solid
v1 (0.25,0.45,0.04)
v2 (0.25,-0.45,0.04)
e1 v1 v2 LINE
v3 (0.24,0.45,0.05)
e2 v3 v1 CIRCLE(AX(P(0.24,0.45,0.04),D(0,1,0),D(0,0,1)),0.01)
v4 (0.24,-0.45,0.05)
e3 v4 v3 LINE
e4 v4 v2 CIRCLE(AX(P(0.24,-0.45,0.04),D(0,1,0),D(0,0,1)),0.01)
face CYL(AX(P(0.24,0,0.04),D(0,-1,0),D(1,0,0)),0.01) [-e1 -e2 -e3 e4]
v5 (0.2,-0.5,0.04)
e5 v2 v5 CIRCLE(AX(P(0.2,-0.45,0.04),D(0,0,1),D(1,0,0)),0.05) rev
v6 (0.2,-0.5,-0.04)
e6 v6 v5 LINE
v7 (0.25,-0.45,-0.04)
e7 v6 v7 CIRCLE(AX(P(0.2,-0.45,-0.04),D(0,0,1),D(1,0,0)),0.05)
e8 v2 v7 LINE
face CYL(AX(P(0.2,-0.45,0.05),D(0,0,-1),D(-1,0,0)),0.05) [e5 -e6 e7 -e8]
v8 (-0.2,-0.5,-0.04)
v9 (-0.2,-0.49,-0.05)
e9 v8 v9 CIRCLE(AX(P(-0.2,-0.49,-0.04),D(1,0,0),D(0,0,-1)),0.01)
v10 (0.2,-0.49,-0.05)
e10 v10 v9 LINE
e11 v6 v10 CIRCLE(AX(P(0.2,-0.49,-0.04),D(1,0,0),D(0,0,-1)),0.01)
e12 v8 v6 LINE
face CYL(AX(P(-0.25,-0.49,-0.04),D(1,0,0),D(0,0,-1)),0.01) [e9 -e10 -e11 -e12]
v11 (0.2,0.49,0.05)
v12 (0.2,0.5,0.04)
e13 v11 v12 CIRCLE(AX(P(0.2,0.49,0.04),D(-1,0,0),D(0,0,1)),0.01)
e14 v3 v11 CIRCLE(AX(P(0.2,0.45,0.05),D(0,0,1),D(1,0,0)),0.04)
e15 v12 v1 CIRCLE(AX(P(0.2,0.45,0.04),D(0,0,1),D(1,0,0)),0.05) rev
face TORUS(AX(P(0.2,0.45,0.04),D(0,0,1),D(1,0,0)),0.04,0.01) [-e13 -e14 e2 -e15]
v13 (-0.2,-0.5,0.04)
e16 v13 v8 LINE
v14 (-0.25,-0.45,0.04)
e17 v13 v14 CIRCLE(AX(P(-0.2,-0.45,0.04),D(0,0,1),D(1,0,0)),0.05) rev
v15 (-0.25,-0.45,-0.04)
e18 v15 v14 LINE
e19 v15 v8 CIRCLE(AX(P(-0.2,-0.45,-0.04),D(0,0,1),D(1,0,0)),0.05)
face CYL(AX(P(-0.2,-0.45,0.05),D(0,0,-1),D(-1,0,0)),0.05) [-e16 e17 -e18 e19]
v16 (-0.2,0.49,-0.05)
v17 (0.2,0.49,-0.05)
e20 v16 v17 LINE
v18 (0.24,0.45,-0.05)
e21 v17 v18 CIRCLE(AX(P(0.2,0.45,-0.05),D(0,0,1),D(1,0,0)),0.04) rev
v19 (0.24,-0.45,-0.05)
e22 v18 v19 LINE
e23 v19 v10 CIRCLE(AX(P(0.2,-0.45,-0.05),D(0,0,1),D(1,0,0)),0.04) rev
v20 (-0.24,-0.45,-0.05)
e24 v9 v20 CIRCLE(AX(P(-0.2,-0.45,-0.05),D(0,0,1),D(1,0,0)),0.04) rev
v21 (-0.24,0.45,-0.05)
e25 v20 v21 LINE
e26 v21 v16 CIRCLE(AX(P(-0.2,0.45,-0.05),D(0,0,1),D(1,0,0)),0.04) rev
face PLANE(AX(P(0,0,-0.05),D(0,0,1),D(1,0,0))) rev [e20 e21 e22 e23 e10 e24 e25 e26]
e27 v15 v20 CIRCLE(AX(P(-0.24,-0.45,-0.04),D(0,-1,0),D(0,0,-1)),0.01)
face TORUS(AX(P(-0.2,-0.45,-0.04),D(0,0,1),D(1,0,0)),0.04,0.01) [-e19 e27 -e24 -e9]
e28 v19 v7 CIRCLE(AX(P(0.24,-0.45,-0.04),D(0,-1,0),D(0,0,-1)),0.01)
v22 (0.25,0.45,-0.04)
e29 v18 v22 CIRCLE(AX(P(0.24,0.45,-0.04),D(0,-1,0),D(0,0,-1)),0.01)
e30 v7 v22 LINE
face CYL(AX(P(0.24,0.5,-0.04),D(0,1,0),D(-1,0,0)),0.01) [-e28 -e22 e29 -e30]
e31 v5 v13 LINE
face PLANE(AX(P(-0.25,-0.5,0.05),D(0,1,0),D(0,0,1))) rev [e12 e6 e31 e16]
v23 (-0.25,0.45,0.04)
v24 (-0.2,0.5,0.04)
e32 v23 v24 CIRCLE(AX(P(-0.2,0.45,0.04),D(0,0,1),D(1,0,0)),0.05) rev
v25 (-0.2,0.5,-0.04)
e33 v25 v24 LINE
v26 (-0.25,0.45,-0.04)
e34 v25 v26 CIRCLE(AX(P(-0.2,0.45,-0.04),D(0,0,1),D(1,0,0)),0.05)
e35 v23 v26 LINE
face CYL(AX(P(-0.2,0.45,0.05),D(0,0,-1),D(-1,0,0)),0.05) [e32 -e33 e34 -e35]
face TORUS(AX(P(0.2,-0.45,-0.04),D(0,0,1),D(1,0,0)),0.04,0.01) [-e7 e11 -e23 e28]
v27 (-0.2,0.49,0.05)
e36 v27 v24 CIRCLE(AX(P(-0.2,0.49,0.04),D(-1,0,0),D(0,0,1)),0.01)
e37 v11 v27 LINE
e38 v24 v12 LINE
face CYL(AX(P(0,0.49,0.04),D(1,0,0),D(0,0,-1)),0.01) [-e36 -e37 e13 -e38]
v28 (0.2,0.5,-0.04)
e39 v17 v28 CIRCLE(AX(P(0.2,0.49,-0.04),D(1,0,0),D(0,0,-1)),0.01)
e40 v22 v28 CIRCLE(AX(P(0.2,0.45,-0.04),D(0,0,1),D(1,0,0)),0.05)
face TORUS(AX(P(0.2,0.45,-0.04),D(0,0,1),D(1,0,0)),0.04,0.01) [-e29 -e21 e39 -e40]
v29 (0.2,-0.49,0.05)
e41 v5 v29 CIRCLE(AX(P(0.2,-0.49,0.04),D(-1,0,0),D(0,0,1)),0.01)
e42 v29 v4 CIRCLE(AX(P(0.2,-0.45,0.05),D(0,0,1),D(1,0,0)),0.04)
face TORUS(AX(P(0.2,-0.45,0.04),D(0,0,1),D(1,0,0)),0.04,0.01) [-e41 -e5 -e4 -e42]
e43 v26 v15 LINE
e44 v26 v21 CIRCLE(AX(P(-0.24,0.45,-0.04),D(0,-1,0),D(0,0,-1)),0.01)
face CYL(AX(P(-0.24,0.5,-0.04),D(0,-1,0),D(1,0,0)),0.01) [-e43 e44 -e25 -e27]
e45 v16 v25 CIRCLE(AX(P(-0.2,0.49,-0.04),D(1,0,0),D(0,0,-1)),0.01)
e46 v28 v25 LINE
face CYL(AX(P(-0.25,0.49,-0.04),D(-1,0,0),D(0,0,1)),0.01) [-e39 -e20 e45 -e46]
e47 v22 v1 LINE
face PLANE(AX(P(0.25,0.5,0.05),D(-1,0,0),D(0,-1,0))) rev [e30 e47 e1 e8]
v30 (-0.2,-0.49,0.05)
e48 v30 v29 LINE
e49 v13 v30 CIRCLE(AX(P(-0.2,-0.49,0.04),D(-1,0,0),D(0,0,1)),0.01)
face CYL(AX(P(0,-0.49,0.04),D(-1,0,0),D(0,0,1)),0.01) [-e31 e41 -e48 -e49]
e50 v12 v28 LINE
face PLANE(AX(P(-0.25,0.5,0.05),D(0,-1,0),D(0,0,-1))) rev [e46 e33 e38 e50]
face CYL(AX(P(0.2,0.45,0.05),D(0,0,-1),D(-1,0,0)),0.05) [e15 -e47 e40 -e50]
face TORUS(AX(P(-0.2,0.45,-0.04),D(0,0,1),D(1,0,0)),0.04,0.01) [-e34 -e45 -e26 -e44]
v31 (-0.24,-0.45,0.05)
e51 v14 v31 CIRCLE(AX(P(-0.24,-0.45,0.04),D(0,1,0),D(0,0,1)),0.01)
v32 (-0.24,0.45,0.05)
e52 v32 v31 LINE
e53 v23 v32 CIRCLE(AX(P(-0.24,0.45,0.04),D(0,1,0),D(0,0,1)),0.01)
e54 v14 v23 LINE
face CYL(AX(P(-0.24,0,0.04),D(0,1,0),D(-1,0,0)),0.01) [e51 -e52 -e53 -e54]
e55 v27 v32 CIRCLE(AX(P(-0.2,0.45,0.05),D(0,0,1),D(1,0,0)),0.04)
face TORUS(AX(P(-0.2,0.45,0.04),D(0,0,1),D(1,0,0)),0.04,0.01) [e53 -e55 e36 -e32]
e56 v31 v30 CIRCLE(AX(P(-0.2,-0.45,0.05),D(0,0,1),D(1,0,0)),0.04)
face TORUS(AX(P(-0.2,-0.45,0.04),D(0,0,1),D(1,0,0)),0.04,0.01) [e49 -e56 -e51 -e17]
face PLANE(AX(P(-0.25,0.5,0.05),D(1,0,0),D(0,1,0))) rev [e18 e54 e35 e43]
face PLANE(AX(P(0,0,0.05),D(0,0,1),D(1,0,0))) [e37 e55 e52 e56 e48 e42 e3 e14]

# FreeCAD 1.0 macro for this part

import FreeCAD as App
import Part
import Sketcher

V = App.Vector
Q = App.Units.Quantity


def edges_at(feature, points):
    """Names of the edges that pass closest to the given points."""
    edges = feature.Shape.Edges
    near = lambda p: min(range(len(edges)), key=lambda i: edges[i].distToShape(Part.Vertex(*p))[0])
    return sorted({f"Edge{near(p) + 1}" for p in points})


def add_polygon(sketch, points):
    """Adds a closed chain of lines whose ends are joined by coincident constraints."""
    first, n = sketch.GeometryCount, len(points)
    for a, b in zip(points, points[1:] + points[:1]):
        sketch.addGeometry(Part.LineSegment(App.Vector(*a, 0), App.Vector(*b, 0)), False)
    for i in range(n):
        sketch.addConstraint(Sketcher.Constraint("Coincident", first + i, 2, first + (i + 1) % n, 1))

doc = App.newDocument("Part")
params = doc.addObject("Spreadsheet::Sheet", "Params")
for row, (alias, value) in enumerate([
    ("sketch1_height", "1 mm"),
    ("sketch1_width", "0.5 mm"),
    ("pad1_length", "0.1 mm"),
    ("fillet_radius", "0.05 mm"),
    ("fillet2_radius", "0.01 mm"),
], start=1):
    params.set(f"A{row}", alias)
    params.set(f"B{row}", "=" + value)
    params.setAlias(f"B{row}", alias)

body = doc.addObject("PartDesign::Body", "Body")

# Sketch on XY plane
sketch1 = doc.addObject("Sketcher::SketchObject", "Sketch")
body.addObject(sketch1)
sketch1.AttachmentSupport = (doc.XY_Plane, [""])
sketch1.MapMode = "FlatFace"
add_polygon(sketch1, [(-0.2, 0.5), (-0.2, -0.5), (0.2, -0.5), (0.2, 0.5)])  # lines 0-3
sketch1.addConstraint([
    Sketcher.Constraint("Vertical", 0),
    Sketcher.Constraint("Horizontal", 1),
    Sketcher.Constraint("Vertical", 2),
    Sketcher.Constraint("Horizontal", 3),
    Sketcher.Constraint("Symmetric", 0, 2, 2, 2, -1, 1),
    Sketcher.Constraint("DistanceY", 0, 2, 0, 1, Q("1 mm")),
    Sketcher.Constraint("DistanceX", 1, 1, 1, 2, Q("0.5 mm")),
])
sketch1.setExpression("Constraints[9]", "Params.sketch1_height")
sketch1.setExpression("Constraints[10]", "Params.sketch1_width")
pad1 = doc.addObject("PartDesign::Pad", "Pad")
body.addObject(pad1)
pad1.Profile = sketch1
pad1.setExpression("Length", "Params.pad1_length")
pad1.Midplane = True
doc.recompute()

fillet = doc.addObject("PartDesign::Fillet", "Fillet")
body.addObject(fillet)
fillet.Base = (pad1, edges_at(pad1, [
    (-0.25, 0.5, 0),
    (0.25, 0.5, 0),
    (0.25, -0.5, 0),
    (-0.25, -0.5, 0),
]))
fillet.setExpression("Radius", "Params.fillet_radius")
doc.recompute()

fillet2 = doc.addObject("PartDesign::Fillet", "Fillet001")
body.addObject(fillet2)
fillet2.Base = (fillet, edges_at(fillet, [
    (0, -0.5, -0.05),
    (0, -0.5, 0.05),
    (-0.25, 0, -0.05),
    (0, 0.5, -0.05),
    (0.25, 0, -0.05),
    (0.235, 0.485, -0.05),
    (-0.235, 0.485, -0.05),
    (0.235, -0.485, -0.05),
    (-0.235, -0.485, -0.05),
    (-0.25, 0, 0.05),
    (0.25, 0, 0.05),
    (0, 0.5, 0.05),
    (0.235, 0.485, 0.05),
    (-0.235, 0.485, 0.05),
    (0.235, -0.485, 0.05),
    (-0.235, -0.485, 0.05),
]))
fillet2.setExpression("Radius", "Params.fillet2_radius")

doc.recompute()
